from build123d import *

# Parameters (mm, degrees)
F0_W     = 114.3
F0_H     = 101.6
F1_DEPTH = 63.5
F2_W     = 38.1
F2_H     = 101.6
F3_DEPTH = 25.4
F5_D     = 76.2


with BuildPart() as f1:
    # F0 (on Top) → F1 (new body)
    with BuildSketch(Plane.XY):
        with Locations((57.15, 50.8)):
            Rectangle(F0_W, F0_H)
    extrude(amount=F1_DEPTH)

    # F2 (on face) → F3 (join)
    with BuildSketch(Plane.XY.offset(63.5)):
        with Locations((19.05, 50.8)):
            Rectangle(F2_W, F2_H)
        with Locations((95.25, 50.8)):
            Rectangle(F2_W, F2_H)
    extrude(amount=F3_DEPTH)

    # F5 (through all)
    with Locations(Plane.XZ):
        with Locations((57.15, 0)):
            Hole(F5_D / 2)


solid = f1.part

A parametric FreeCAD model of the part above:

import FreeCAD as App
import Part
import Sketcher
Q = App.Units.Quantity

doc = App.newDocument("Part")
body = doc.addObject("PartDesign::Body", "Body")

# Sketch on XY plane
sketch1 = doc.addObject("Sketcher::SketchObject", "Sketch")
body.addObject(sketch1)
sketch1.AttachmentSupport = (doc.XY_Plane, [""])
sketch1.MapMode = "FlatFace"
sketch1.addGeometry([
    Part.LineSegment(App.Vector(0, 101.6, 0), App.Vector(0, 0, 0)),
    Part.LineSegment(App.Vector(0, 0, 0), App.Vector(114.3, 0, 0)),
    Part.LineSegment(App.Vector(114.3, 0, 0), App.Vector(114.3, 101.6, 0)),
    Part.LineSegment(App.Vector(114.3, 101.6, 0), App.Vector(0, 101.6, 0)),
], False)
sketch1.addConstraint([
    Sketcher.Constraint("Coincident", 0, 2, 1, 1),
    Sketcher.Constraint("Coincident", 1, 2, 2, 1),
    Sketcher.Constraint("Coincident", 2, 2, 3, 1),
    Sketcher.Constraint("Coincident", 3, 2, 0, 1),
    Sketcher.Constraint("Vertical", 0),
    Sketcher.Constraint("Horizontal", 1),
    Sketcher.Constraint("Vertical", 2),
    Sketcher.Constraint("Horizontal", 3),
    Sketcher.Constraint("Coincident", 0, 2, -1, 1),
    Sketcher.Constraint("DistanceY", 0, 2, 0, 1, Q("4 in")),
    Sketcher.Constraint("DistanceX", 1, 1, 1, 2, Q("4.5 in")),
])
pad1 = doc.addObject("PartDesign::Pad", "Pad")
body.addObject(pad1)
pad1.Profile = sketch1
pad1.Length = Q("2.5 in")

# Sketch on XY plane
sketch2 = doc.addObject("Sketcher::SketchObject", "Sketch001")
body.addObject(sketch2)
sketch2.AttachmentSupport = (doc.XY_Plane, [""])
sketch2.MapMode = "FlatFace"
sketch2.AttachmentOffset = App.Placement(App.Vector(0, 0, 2.5 * 25.4), App.Rotation())
sketch2.addGeometry([
    Part.LineSegment(App.Vector(0, 101.6, 0), App.Vector(0, 0, 0)),  # 0
    Part.LineSegment(App.Vector(0, 0, 0), App.Vector(38.1, 0, 0)),  # 1
    Part.LineSegment(App.Vector(38.1, 0, 0), App.Vector(38.1, 101.6, 0)),  # 2
    Part.LineSegment(App.Vector(38.1, 101.6, 0), App.Vector(0, 101.6, 0)),  # 3
    Part.LineSegment(App.Vector(76.2, 101.6, 0), App.Vector(76.2, 0, 0)),  # 4
    Part.LineSegment(App.Vector(76.2, 0, 0), App.Vector(114.3, 0, 0)),  # 5
    Part.LineSegment(App.Vector(114.3, 0, 0), App.Vector(114.3, 101.6, 0)),  # 6
    Part.LineSegment(App.Vector(114.3, 101.6, 0), App.Vector(76.2, 101.6, 0)),  # 7
], False)
sketch2.addConstraint([
    Sketcher.Constraint("Coincident", 0, 2, 1, 1),
    Sketcher.Constraint("Coincident", 1, 2, 2, 1),
    Sketcher.Constraint("Coincident", 2, 2, 3, 1),
    Sketcher.Constraint("Coincident", 3, 2, 0, 1),
    Sketcher.Constraint("Coincident", 4, 2, 5, 1),
    Sketcher.Constraint("Coincident", 5, 2, 6, 1),
    Sketcher.Constraint("Coincident", 6, 2, 7, 1),
    Sketcher.Constraint("Coincident", 7, 2, 4, 1),
    Sketcher.Constraint("Vertical", 0),
    Sketcher.Constraint("Horizontal", 1),
    Sketcher.Constraint("Vertical", 2),
    Sketcher.Constraint("Horizontal", 3),
    Sketcher.Constraint("Vertical", 4),
    Sketcher.Constraint("Horizontal", 5),
    Sketcher.Constraint("Vertical", 6),
    Sketcher.Constraint("Horizontal", 7),
    Sketcher.Constraint("Coincident", 0, 2, -1, 1),
    Sketcher.Constraint("PointOnObject", 4, 2, -1),
    Sketcher.Constraint("Horizontal", 3, 2, 6, 2),
    Sketcher.Constraint("Equal", 3, 5),
    Sketcher.Constraint("DistanceY", 0, 2, 0, 1, Q("4 in")),
    Sketcher.Constraint("DistanceX", 1, 1, 1, 2, Q("1.5 in")),
    Sketcher.Constraint("DistanceX", -1, 1, 4, 2, Q("3 in")),
])
pad2 = doc.addObject("PartDesign::Pad", "Pad001")
body.addObject(pad2)
pad2.Profile = sketch2
pad2.Length = Q("1 in")

# Sketch on XZ plane
sketch3 = doc.addObject("Sketcher::SketchObject", "Sketch002")
body.addObject(sketch3)
sketch3.AttachmentSupport = (doc.XZ_Plane, [""])
sketch3.MapMode = "FlatFace"
sketch3.addGeometry(Part.Circle(App.Vector(57.15, 0, 0), App.Vector(0, 0, 1), 38.1), False)
sketch3.addConstraint([
    Sketcher.Constraint("PointOnObject", 0, 3, -1),
    Sketcher.Constraint("Diameter", 0, Q("3 in")),
    Sketcher.Constraint("DistanceX", -1, 1, 0, 3, Q("2.25 in")),
])
doc.recompute()
hole = doc.addObject("PartDesign::Hole", "Hole")
body.addObject(hole)
hole.Profile = sketch3
hole.ThreadType = "None"
hole.Diameter = Q("3 in")
hole.DepthType = "ThroughAll"

doc.recompute()
